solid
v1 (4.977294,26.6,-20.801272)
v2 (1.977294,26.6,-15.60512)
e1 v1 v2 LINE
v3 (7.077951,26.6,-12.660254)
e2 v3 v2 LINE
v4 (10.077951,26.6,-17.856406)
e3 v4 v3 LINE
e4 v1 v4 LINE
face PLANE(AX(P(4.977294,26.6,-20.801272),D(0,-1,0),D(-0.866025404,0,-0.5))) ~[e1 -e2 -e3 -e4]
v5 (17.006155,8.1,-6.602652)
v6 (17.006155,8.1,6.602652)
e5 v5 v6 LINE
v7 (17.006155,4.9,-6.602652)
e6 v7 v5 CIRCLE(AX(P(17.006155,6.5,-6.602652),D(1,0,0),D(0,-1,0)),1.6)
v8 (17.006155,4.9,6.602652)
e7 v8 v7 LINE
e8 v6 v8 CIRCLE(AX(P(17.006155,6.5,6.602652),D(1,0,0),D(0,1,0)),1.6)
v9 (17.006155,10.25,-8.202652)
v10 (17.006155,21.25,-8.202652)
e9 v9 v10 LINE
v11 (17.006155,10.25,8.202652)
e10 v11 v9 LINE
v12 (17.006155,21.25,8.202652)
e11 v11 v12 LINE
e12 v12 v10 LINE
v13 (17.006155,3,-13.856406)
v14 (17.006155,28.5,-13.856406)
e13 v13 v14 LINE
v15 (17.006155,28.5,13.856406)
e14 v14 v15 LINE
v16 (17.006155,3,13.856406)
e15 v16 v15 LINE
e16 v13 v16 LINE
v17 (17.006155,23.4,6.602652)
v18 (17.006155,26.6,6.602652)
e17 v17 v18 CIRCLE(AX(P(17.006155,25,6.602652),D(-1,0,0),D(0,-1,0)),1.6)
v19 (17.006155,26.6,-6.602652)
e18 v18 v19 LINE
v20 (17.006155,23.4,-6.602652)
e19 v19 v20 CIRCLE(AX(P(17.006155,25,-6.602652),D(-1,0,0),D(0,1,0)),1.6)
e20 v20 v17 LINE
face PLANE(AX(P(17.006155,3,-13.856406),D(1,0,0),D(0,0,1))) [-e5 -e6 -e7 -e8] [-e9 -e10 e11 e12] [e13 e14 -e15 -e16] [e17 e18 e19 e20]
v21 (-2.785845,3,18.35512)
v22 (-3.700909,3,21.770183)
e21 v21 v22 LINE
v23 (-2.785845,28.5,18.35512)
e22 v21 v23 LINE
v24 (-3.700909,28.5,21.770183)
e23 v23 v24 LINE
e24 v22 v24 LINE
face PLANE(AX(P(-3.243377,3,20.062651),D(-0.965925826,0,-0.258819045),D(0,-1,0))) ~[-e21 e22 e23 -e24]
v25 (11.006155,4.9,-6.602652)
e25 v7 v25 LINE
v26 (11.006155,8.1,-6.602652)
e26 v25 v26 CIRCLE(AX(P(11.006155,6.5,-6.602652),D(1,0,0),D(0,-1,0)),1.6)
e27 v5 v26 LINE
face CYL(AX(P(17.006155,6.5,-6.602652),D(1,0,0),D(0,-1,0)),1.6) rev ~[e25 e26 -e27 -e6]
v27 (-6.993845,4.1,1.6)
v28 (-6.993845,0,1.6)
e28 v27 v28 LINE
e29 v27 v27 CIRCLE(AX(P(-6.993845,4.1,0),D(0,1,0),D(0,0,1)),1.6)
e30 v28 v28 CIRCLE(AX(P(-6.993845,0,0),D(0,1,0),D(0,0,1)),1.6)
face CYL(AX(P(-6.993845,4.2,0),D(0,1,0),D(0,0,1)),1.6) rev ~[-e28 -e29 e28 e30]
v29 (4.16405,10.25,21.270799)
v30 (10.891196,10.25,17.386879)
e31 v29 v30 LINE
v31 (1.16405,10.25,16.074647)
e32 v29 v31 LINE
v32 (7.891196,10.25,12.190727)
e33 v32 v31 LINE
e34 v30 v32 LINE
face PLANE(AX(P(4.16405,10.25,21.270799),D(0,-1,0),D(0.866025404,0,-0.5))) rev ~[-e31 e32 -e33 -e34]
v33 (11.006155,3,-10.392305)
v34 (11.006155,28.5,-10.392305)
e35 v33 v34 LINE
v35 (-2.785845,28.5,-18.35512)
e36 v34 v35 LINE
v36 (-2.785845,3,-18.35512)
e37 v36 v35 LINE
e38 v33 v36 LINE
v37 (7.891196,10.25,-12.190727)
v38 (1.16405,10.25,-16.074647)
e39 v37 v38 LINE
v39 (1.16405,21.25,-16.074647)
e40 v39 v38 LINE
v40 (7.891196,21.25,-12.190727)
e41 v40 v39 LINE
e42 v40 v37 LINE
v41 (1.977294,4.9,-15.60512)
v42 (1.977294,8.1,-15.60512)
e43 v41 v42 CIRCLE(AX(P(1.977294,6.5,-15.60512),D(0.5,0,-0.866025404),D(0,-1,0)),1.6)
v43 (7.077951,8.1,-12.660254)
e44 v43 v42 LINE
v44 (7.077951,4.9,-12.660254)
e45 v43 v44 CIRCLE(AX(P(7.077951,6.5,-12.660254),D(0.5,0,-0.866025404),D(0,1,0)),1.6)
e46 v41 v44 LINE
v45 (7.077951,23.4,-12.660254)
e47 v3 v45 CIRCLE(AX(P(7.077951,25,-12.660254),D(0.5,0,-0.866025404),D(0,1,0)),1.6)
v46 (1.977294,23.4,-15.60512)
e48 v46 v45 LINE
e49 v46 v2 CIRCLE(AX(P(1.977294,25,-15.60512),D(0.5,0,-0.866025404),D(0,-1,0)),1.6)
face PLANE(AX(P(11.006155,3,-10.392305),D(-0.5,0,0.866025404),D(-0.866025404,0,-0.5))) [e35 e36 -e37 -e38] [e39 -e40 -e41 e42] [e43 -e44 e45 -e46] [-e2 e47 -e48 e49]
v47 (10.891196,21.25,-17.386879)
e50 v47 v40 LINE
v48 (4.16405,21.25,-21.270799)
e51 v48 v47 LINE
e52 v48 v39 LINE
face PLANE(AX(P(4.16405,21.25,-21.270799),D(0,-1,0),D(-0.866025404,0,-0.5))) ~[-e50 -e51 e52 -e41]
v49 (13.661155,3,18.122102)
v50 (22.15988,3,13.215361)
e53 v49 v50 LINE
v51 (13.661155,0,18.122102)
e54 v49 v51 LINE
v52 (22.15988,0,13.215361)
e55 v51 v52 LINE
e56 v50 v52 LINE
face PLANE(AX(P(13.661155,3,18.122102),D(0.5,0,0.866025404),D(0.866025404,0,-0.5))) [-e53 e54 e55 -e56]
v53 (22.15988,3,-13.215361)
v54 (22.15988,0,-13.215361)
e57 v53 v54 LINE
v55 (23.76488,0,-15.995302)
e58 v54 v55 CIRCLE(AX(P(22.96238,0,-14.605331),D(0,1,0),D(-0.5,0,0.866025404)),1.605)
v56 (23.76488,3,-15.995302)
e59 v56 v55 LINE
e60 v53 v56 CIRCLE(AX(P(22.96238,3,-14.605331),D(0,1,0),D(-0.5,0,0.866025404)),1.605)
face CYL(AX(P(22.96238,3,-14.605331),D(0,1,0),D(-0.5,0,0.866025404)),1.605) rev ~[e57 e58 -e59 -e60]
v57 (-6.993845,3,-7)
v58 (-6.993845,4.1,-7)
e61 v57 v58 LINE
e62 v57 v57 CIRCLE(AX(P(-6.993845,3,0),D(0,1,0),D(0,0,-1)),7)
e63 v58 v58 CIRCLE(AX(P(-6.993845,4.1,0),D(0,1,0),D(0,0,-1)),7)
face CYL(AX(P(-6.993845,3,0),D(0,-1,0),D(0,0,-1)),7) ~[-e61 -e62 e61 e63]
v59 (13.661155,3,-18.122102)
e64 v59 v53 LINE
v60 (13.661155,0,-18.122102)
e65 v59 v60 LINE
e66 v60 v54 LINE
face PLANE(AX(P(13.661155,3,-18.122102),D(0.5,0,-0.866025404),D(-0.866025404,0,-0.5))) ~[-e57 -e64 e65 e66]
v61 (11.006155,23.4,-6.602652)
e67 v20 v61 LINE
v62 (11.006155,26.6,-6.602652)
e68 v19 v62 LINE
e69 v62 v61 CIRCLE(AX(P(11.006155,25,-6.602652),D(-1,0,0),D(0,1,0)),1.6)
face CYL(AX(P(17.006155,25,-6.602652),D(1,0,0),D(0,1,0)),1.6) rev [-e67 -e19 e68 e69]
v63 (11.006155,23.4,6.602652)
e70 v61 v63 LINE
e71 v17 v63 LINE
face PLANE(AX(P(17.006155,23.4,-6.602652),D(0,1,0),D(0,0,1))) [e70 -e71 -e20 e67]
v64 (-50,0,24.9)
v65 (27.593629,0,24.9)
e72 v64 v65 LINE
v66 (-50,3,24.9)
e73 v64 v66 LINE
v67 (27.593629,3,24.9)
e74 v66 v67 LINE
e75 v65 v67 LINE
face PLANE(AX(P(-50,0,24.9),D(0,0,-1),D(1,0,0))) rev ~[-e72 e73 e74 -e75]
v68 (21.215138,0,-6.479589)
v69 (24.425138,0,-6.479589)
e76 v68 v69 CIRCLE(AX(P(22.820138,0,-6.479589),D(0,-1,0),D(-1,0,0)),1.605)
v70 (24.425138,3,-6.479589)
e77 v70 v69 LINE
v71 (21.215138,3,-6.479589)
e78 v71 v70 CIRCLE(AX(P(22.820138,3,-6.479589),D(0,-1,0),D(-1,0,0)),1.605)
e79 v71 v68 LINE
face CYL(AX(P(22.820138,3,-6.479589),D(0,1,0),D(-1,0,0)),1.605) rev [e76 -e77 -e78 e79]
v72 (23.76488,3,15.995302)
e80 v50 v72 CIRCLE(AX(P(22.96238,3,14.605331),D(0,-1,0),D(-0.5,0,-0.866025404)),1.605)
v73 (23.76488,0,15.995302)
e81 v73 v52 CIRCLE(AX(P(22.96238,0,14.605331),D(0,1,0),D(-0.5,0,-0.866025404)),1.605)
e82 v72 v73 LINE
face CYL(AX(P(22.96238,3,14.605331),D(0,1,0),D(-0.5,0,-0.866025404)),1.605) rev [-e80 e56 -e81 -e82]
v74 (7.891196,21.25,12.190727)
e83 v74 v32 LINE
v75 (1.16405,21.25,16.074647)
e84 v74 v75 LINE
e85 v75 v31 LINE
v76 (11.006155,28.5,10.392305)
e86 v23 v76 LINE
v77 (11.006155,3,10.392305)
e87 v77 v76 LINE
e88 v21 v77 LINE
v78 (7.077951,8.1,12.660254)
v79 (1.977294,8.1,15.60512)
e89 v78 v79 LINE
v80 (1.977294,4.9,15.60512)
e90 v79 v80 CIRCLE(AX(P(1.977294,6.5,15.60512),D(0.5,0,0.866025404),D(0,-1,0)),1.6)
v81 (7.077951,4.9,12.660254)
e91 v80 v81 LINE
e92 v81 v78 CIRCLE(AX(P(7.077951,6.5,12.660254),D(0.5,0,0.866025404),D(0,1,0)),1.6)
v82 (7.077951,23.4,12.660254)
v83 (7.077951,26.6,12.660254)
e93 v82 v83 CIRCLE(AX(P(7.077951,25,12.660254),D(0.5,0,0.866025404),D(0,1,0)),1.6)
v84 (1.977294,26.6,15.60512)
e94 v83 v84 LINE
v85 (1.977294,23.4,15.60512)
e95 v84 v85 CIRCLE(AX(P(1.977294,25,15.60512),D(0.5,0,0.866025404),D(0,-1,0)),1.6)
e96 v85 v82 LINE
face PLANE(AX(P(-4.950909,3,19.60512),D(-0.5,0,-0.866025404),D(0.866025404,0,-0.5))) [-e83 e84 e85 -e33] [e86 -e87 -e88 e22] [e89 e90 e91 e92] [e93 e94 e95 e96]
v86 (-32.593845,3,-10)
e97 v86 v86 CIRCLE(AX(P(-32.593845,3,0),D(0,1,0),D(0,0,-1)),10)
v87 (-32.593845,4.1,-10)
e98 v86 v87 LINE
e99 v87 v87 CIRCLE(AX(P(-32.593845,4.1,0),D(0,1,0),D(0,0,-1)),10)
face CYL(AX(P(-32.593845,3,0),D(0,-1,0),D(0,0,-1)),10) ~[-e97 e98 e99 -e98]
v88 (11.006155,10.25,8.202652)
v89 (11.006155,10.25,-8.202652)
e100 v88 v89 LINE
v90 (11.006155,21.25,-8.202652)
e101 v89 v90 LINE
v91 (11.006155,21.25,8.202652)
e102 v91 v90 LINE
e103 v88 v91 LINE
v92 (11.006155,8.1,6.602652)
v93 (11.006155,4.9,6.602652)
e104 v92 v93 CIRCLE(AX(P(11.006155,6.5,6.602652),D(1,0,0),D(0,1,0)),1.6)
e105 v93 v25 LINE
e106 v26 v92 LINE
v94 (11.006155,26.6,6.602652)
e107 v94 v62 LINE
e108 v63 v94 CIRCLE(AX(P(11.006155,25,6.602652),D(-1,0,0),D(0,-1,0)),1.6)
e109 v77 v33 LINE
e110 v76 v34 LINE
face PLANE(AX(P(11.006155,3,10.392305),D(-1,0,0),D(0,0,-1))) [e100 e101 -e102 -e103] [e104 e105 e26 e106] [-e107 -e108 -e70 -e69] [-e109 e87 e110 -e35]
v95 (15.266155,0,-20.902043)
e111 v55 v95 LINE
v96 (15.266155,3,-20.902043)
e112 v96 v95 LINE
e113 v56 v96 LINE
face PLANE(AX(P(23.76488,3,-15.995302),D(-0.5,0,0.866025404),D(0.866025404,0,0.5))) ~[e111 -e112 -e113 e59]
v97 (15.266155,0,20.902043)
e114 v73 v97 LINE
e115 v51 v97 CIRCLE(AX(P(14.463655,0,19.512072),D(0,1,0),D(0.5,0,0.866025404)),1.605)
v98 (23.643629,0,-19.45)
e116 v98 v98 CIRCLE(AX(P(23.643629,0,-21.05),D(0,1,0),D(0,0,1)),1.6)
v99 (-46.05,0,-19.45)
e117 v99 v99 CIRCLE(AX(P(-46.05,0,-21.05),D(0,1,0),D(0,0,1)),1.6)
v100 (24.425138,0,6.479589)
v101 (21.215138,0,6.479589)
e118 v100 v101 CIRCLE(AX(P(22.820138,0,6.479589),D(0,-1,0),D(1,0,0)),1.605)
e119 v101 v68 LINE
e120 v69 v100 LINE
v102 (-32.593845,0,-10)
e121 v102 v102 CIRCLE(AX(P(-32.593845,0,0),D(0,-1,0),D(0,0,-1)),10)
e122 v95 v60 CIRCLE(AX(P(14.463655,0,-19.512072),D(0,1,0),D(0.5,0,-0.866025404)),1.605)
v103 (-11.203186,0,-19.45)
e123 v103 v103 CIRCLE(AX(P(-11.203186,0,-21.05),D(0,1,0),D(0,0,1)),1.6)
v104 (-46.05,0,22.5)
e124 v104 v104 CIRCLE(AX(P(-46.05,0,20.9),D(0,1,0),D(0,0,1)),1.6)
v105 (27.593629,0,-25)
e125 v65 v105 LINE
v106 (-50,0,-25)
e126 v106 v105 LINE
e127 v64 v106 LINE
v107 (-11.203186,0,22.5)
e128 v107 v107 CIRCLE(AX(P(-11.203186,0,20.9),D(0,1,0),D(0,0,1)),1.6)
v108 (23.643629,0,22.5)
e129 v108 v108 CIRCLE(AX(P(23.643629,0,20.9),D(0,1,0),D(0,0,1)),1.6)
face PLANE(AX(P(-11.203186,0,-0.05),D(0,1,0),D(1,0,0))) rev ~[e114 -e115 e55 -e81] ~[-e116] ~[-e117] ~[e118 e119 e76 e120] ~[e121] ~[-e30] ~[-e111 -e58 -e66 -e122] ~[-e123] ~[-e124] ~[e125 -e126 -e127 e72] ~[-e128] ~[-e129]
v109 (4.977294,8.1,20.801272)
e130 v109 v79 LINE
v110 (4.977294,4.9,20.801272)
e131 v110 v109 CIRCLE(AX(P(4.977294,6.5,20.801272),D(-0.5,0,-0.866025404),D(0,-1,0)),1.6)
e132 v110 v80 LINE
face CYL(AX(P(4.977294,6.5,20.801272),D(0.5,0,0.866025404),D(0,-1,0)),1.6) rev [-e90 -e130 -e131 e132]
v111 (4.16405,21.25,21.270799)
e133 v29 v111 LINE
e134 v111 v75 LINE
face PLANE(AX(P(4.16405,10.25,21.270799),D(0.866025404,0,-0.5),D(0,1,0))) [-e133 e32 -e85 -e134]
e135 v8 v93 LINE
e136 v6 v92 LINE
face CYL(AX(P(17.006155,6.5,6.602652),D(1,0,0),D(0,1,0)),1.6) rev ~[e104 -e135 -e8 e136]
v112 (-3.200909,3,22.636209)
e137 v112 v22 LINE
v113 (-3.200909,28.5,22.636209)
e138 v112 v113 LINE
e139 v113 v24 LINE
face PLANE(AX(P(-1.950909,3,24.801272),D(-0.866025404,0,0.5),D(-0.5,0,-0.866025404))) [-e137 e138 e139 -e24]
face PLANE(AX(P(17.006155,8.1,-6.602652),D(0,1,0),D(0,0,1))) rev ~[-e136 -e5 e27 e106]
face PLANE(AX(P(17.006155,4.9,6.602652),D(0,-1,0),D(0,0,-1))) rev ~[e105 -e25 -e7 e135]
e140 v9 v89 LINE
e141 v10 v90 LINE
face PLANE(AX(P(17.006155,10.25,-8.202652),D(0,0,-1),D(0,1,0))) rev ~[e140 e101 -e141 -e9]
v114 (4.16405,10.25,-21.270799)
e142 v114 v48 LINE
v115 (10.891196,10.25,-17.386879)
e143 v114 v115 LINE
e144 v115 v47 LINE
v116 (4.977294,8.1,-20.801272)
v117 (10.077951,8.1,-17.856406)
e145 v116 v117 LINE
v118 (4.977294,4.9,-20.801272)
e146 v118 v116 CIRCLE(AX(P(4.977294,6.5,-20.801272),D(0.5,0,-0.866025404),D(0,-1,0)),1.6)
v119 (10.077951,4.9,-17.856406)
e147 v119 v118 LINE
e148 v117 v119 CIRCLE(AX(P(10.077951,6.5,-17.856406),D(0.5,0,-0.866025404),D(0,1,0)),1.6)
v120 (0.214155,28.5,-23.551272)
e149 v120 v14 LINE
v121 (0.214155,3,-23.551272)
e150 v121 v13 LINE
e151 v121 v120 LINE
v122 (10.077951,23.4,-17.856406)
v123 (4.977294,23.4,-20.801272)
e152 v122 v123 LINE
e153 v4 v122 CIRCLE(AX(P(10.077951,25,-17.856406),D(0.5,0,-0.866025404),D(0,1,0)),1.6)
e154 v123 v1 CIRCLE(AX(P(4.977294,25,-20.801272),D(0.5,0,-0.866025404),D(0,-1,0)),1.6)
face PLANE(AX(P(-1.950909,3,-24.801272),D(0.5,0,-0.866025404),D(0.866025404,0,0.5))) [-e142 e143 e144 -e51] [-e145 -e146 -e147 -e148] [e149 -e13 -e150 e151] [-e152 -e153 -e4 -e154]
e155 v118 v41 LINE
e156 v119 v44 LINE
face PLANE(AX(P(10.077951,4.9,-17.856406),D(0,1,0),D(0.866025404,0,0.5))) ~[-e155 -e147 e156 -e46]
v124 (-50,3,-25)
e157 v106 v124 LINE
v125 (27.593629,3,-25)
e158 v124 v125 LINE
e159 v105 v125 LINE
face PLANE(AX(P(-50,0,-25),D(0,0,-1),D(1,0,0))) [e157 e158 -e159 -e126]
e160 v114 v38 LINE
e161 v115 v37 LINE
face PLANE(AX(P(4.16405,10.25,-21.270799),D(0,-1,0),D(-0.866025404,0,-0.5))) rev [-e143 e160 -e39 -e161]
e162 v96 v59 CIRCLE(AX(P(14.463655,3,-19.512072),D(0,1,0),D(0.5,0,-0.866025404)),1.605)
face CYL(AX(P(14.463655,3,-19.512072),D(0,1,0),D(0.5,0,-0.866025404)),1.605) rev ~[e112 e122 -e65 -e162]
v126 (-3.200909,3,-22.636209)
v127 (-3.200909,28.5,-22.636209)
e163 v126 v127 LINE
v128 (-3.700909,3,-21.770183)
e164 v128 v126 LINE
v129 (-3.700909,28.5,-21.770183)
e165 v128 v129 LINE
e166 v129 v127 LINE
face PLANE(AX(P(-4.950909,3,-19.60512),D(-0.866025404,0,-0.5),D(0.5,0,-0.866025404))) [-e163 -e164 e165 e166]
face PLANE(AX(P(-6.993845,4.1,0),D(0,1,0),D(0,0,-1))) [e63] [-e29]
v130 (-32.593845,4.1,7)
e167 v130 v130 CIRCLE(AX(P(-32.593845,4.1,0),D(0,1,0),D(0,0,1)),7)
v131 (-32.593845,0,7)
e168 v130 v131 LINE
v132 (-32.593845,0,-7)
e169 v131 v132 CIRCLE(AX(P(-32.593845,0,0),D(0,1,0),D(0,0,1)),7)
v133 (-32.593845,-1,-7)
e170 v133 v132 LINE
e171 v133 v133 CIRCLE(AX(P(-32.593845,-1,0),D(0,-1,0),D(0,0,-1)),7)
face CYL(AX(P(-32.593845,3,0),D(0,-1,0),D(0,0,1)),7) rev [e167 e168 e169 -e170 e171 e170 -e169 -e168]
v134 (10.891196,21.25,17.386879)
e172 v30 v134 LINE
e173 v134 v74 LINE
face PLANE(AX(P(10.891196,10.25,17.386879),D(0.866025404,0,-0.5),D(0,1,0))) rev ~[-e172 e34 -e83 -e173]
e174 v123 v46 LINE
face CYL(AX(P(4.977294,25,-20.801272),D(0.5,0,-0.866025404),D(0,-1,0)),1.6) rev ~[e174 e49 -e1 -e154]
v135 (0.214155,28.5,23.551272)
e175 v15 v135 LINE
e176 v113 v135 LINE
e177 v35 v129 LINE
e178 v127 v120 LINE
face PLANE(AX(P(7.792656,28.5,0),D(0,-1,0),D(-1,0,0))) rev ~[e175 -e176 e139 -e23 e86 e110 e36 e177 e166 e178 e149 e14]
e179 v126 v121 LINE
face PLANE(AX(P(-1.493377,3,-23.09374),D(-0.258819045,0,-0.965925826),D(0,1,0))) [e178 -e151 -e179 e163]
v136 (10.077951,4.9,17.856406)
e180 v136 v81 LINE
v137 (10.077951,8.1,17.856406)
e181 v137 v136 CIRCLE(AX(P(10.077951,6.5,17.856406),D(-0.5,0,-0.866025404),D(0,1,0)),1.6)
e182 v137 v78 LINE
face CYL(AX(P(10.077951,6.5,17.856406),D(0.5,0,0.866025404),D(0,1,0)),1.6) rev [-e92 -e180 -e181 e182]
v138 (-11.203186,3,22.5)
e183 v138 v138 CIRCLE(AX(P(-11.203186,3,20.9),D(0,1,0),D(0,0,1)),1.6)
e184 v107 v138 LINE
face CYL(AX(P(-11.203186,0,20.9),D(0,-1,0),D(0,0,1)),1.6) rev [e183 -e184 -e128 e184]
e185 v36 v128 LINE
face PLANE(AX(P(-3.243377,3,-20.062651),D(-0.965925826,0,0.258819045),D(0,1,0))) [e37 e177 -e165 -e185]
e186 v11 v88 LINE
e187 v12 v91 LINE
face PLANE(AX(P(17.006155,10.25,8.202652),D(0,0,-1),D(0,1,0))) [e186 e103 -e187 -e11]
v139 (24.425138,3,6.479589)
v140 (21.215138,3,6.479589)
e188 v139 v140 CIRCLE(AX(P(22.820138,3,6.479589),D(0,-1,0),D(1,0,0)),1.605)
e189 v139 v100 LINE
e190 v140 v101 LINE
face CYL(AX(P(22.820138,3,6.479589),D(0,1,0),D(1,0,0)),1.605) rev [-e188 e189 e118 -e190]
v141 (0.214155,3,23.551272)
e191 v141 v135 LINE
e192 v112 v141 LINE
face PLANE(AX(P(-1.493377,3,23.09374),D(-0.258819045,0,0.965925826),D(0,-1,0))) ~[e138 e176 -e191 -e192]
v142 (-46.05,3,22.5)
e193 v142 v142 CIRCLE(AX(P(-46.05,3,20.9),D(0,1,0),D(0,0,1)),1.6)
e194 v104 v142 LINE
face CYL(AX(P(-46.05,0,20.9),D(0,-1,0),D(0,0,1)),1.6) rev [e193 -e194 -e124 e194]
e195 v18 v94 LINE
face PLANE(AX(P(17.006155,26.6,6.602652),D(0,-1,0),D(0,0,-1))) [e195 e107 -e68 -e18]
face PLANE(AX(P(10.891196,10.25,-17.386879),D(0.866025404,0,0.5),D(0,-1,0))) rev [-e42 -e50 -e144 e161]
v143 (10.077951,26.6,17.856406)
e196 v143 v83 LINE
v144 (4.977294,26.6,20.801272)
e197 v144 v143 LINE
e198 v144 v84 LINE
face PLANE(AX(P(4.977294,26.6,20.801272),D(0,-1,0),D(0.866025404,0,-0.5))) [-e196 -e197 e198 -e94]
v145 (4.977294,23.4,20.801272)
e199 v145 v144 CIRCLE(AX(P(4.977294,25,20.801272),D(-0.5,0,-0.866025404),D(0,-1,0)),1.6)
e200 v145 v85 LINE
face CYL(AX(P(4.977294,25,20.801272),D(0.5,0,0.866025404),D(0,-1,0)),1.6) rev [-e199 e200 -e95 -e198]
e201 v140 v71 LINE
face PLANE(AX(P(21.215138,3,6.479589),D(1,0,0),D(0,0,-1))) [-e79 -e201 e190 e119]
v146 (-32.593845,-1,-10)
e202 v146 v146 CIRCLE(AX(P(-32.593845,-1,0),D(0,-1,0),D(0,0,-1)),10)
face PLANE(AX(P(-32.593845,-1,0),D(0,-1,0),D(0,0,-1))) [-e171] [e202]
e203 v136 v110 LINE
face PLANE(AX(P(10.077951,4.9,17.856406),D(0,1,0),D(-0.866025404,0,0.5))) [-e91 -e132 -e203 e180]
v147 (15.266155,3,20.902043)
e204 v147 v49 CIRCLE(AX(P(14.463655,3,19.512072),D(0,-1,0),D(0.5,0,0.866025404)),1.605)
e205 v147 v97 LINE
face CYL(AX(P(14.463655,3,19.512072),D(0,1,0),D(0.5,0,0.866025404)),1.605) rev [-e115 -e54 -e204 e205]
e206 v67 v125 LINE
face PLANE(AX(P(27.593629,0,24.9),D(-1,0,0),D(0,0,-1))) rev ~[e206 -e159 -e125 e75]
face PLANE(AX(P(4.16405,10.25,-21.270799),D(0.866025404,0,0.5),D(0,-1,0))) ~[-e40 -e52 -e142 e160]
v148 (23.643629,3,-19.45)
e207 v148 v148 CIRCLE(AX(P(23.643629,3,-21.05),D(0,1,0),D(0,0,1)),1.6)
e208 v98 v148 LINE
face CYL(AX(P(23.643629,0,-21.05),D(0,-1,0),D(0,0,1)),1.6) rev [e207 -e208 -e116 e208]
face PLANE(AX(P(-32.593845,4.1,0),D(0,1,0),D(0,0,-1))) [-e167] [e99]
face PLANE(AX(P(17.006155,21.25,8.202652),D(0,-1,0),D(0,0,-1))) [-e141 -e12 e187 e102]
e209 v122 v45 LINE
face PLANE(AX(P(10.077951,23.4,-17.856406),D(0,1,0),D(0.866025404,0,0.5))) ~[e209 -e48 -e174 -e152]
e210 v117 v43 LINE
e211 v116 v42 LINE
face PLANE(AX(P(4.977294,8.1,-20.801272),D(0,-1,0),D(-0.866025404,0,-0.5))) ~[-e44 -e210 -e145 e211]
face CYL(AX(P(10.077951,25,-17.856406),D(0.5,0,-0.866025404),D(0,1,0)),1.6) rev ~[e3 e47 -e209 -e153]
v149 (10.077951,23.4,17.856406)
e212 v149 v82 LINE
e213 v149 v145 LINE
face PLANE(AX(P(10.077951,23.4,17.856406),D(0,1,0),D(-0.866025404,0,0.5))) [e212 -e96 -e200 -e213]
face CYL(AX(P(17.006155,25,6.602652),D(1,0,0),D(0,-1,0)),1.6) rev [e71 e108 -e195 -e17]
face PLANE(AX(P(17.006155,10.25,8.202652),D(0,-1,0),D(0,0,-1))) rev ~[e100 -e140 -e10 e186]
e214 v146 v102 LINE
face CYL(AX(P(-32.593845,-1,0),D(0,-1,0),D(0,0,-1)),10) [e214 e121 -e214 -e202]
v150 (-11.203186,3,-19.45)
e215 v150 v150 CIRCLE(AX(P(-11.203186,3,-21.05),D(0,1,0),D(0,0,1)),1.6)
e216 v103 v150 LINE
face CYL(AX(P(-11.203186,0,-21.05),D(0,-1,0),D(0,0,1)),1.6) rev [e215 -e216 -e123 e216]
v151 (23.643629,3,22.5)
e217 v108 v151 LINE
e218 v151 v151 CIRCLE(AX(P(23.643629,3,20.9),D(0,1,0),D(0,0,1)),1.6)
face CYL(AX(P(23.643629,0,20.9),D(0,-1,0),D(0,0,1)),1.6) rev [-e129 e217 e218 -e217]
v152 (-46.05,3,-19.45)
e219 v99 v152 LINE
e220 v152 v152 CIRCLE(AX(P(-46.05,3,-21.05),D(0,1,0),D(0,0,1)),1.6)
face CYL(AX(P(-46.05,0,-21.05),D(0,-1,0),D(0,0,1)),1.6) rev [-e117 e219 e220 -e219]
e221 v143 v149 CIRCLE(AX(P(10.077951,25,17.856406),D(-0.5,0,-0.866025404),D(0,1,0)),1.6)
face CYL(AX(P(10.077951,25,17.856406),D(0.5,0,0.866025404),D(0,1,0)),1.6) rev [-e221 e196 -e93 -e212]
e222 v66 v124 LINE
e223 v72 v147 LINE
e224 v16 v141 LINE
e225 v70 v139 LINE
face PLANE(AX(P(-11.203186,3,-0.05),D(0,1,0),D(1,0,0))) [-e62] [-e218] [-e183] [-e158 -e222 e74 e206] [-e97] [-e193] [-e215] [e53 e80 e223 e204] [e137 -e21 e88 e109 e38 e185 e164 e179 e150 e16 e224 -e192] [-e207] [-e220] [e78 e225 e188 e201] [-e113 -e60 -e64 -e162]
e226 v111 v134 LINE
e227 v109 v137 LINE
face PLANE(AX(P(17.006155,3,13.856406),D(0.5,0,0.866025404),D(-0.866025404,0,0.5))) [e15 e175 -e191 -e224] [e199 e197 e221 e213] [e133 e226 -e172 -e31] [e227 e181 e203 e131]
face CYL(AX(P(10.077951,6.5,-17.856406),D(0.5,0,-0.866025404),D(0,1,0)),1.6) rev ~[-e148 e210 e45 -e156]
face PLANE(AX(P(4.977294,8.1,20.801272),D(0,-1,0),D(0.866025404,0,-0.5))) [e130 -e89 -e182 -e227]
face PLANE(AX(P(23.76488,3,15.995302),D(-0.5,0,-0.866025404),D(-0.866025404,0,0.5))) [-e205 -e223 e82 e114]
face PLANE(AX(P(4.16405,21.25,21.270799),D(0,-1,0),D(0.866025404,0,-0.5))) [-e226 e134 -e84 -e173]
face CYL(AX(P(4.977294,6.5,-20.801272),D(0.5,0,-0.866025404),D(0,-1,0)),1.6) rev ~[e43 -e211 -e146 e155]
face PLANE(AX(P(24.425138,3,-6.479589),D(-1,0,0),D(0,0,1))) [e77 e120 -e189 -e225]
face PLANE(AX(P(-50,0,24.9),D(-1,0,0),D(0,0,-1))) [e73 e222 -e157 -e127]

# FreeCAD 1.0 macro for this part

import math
import FreeCAD as App
import Part
import Sketcher
Q = App.Units.Quantity


def edges_at(feature, points):
    """Names of the edges that pass closest to the given points."""
    edges = feature.Shape.Edges
    near = lambda p: min(range(len(edges)), key=lambda i: edges[i].distToShape(Part.Vertex(*p))[0])
    return sorted({f"Edge{near(p) + 1}" for p in points})


def add_polygon(sketch, points):
    """Adds a closed chain of lines whose ends are joined by coincident constraints."""
    first, n = sketch.GeometryCount, len(points)
    for a, b in zip(points, points[1:] + points[:1]):
        sketch.addGeometry(Part.LineSegment(App.Vector(*a, 0), App.Vector(*b, 0)), False)
    for i in range(n):
        sketch.addConstraint(Sketcher.Constraint("Coincident", first + i, 2, first + (i + 1) % n, 1))

doc = App.newDocument("Part")
params = doc.addObject("Spreadsheet::Sheet", "Params")
for row, (alias, value) in enumerate([
    ("sketch1_diameter", "14 mm"),
    ("sketch1_diameter2", "3.2 mm"),
    ("sketch1_height", "49.9 mm"),
    ("pad1_length", "3 mm"),
    ("sketch2_diameter", "20 mm"),
    ("sketch2_diameter2", "14 mm"),
    ("pad2_length", "1.1 mm"),
    ("sketch3_diameter", "20 mm"),
    ("sketch3_diameter2", "14 mm"),
    ("pad3_length", "1 mm"),
    ("sketch4_diameter", "3 mm"),
    ("pad4_length", "0.1 mm"),
    ("sketch5_length", "6 mm"),
    ("pad5_length", "25.5 mm"),
    ("sketch6_radius", "1.6 mm"),
    ("sketch6_height", "11 mm"),
    ("pocket1_length", "60.05772 mm"),
    ("pocket2_length", "11 mm"),
    ("chamfer_size", "2.5 mm"),
    ("chamfer2_size", "2.5 mm"),
    ("sketch8_diameter", "3.2 mm"),
    ("pocket3_length", "4.2 mm"),
    ("sketch9_radius", "1.6 mm"),
    ("sketch9_width", "11 mm"),
    ("pocket4_length", "6 mm"),
    ("pocket5_length", "3 mm"),
], start=1):
    params.set(f"A{row}", alias)
    params.set(f"B{row}", "=" + value)
    params.setAlias(f"B{row}", alias)

body = doc.addObject("PartDesign::Body", "Body")

# Sketch on XZ plane
sketch1 = body.newObject("Sketcher::SketchObject", "Sketch")
sketch1.AttachmentSupport = (doc.getObject("XZ_Plane"), [""])
sketch1.MapMode = "FlatFace"
add_polygon(sketch1, [(-50, -25), (-50, 24.9), (27.6, 24.9), (27.6, -25)])  # lines 0-3
sketch1.addGeometry(Part.Circle(App.Vector(-46, 20.9, 0), App.Vector(0, 0, 1), 1.6), False)  # 4
sketch1.addGeometry(Part.Circle(App.Vector(-32.6, 0, 0), App.Vector(0, 0, 1), 7), False)  # 5
sketch1.addGeometry(Part.Circle(App.Vector(-11.2, 20.9, 0), App.Vector(0, 0, 1), 1.6), False)  # 6
sketch1.addGeometry(Part.Circle(App.Vector(23.6, 20.9, 0), App.Vector(0, 0, 1), 1.6), False)  # 7
sketch1.addGeometry(Part.Circle(App.Vector(-46, -21.1, 0), App.Vector(0, 0, 1), 1.6), False)  # 8
sketch1.addGeometry(Part.Circle(App.Vector(-11.2, -21.1, 0), App.Vector(0, 0, 1), 1.6), False)  # 9
sketch1.addGeometry(Part.Circle(App.Vector(23.6, -21.1, 0), App.Vector(0, 0, 1), 1.6), False)  # 10
sketch1.addConstraint(Sketcher.Constraint("Vertical", 0))
sketch1.addConstraint(Sketcher.Constraint("Horizontal", 1))
sketch1.addConstraint(Sketcher.Constraint("Vertical", 2))
sketch1.addConstraint(Sketcher.Constraint("Horizontal", 3))
sketch1.addConstraint(Sketcher.Constraint("Equal", 4, 6))
sketch1.addConstraint(Sketcher.Constraint("Equal", 6, 7))
sketch1.addConstraint(Sketcher.Constraint("Equal", 7, 8))
sketch1.addConstraint(Sketcher.Constraint("Equal", 8, 9))
sketch1.addConstraint(Sketcher.Constraint("Equal", 9, 10))
sketch1.addConstraint(Sketcher.Constraint("PointOnObject", 5, 3, -1))
sketch1.addConstraint(Sketcher.Constraint("Horizontal", 4, 3, 6, 3))
sketch1.addConstraint(Sketcher.Constraint("Horizontal", 6, 3, 7, 3))
sketch1.addConstraint(Sketcher.Constraint("Horizontal", 8, 3, 9, 3))
sketch1.addConstraint(Sketcher.Constraint("Horizontal", 9, 3, 10, 3))
sketch1.addConstraint(Sketcher.Constraint("Vertical", 4, 3, 8, 3))
sketch1.addConstraint(Sketcher.Constraint("Vertical", 6, 3, 9, 3))
sketch1.addConstraint(Sketcher.Constraint("Vertical", 7, 3, 10, 3))
sketch1.addConstraint(Sketcher.Constraint("Diameter", 5, Q("14 mm")))
sketch1.addConstraint(Sketcher.Constraint("Diameter", 4, Q("3.2 mm")))
sketch1.addConstraint(Sketcher.Constraint("DistanceY", 0, 1, 0, 2, Q("49.9 mm")))
sketch1.addConstraint(Sketcher.Constraint("DistanceX", 0, 2, -1, 1, Q("50 mm")))
sketch1.addConstraint(Sketcher.Constraint("DistanceY", 2, 2, -1, 1, Q("25 mm")))
sketch1.addConstraint(Sketcher.Constraint("DistanceY", 4, 3, 0, 2, Q("4 mm")))
sketch1.addConstraint(Sketcher.Constraint("DistanceX", 4, 3, -1, 1, Q("46.05 mm")))
sketch1.addConstraint(Sketcher.Constraint("DistanceY", 8, 3, -1, 1, Q("21.05 mm")))
sketch1.addConstraint(Sketcher.Constraint("DistanceX", 7, 3, 1, 2, Q("3.95 mm")))
sketch1.addConstraint(Sketcher.Constraint("DistanceX", 1, 1, 1, 2, Q("77.593629 mm")))
sketch1.addConstraint(Sketcher.Constraint("DistanceX", 5, 3, 6, 3, Q("21.39066 mm")))
sketch1.addConstraint(Sketcher.Constraint("DistanceX", 5, 3, -1, 1, Q("32.593845 mm")))
sketch1.setExpression("Constraints[21]", "Params.sketch1_diameter")
sketch1.setExpression("Constraints[22]", "Params.sketch1_diameter2")
sketch1.setExpression("Constraints[23]", "Params.sketch1_height")
pad1 = body.newObject("PartDesign::Pad", "Pad")
pad1.Profile = sketch1
pad1.setExpression("Length", "Params.pad1_length")
pad1.Reversed = True

# Sketch on XZ plane
sketch2 = body.newObject("Sketcher::SketchObject", "Sketch001")
sketch2.AttachmentSupport = (doc.getObject("XZ_Plane"), [""])
sketch2.MapMode = "FlatFace"
sketch2.AttachmentOffset = App.Placement(App.Vector(0, 0, -3), App.Rotation())
sketch2.addGeometry(Part.Circle(App.Vector(-33, 0, 0), App.Vector(0, 0, 1), 10), False)
sketch2.addGeometry(Part.Circle(App.Vector(-33, 0, 0), App.Vector(0, 0, 1), 7), False)
sketch2.addGeometry(Part.Circle(App.Vector(-7, 0, 0), App.Vector(0, 0, 1), 7), False)
sketch2.addConstraint(Sketcher.Constraint("Coincident", 1, 3, 0, 3))
sketch2.addConstraint(Sketcher.Constraint("Equal", 1, 2))
sketch2.addConstraint(Sketcher.Constraint("PointOnObject", 0, 3, -1))
sketch2.addConstraint(Sketcher.Constraint("PointOnObject", 2, 3, -1))
sketch2.addConstraint(Sketcher.Constraint("Diameter", 0, Q("20 mm")))
sketch2.addConstraint(Sketcher.Constraint("Diameter", 1, Q("14 mm")))
sketch2.addConstraint(Sketcher.Constraint("DistanceX", 0, 3, 2, 3, Q("25.6 mm")))
sketch2.addConstraint(Sketcher.Constraint("DistanceX", 0, 3, -1, 1, Q("32.593845 mm")))
sketch2.setExpression("Constraints[4]", "Params.sketch2_diameter")
sketch2.setExpression("Constraints[5]", "Params.sketch2_diameter2")
pad2 = body.newObject("PartDesign::Pad", "Pad001")
pad2.Profile = sketch2
pad2.setExpression("Length", "Params.pad2_length")
pad2.Reversed = True

# Sketch on XZ plane
sketch3 = body.newObject("Sketcher::SketchObject", "Sketch002")
sketch3.AttachmentSupport = (doc.getObject("XZ_Plane"), [""])
sketch3.MapMode = "FlatFace"
sketch3.AttachmentOffset = App.Placement(App.Vector(0, 0, 1), App.Rotation())
sketch3.addGeometry(Part.Circle(App.Vector(-33, 0, 0), App.Vector(0, 0, 1), 10), False)
sketch3.addGeometry(Part.Circle(App.Vector(-33, 0, 0), App.Vector(0, 0, 1), 7), False)
sketch3.addConstraint(Sketcher.Constraint("Coincident", 1, 3, 0, 3))
sketch3.addConstraint(Sketcher.Constraint("PointOnObject", 0, 3, -1))
sketch3.addConstraint(Sketcher.Constraint("Diameter", 0, Q("20 mm")))
sketch3.addConstraint(Sketcher.Constraint("Diameter", 1, Q("14 mm")))
sketch3.addConstraint(Sketcher.Constraint("DistanceX", 0, 3, -1, 1, Q("32.593845 mm")))
sketch3.setExpression("Constraints[2]", "Params.sketch3_diameter")
sketch3.setExpression("Constraints[3]", "Params.sketch3_diameter2")
pad3 = body.newObject("PartDesign::Pad", "Pad002")
pad3.Profile = sketch3
pad3.setExpression("Length", "Params.pad3_length")
pad3.Reversed = True

# Sketch on XZ plane
sketch4 = body.newObject("Sketcher::SketchObject", "Sketch003")
sketch4.AttachmentSupport = (doc.getObject("XZ_Plane"), [""])
sketch4.MapMode = "FlatFace"
sketch4.AttachmentOffset = App.Placement(App.Vector(0, 0, -4.1), App.Rotation())
sketch4.addGeometry(Part.Circle(App.Vector(-7, 0, 0), App.Vector(0, 0, 1), 1.5), False)
sketch4.addConstraint(Sketcher.Constraint("PointOnObject", 0, 3, -1))
sketch4.addConstraint(Sketcher.Constraint("Diameter", 0, Q("3 mm")))
sketch4.addConstraint(Sketcher.Constraint("DistanceX", 0, 3, -1, 1, Q("6.993845 mm")))
sketch4.setExpression("Constraints[1]", "Params.sketch4_diameter")
pad4 = body.newObject("PartDesign::Pad", "Pad003")
pad4.Profile = sketch4
pad4.setExpression("Length", "Params.pad4_length")
pad4.Reversed = True

# Sketch on XZ plane
sketch5 = body.newObject("Sketcher::SketchObject", "Sketch004")
sketch5.AttachmentSupport = (doc.getObject("XZ_Plane"), [""])
sketch5.MapMode = "FlatFace"
sketch5.AttachmentOffset = App.Placement(App.Vector(0, 0, -3), App.Rotation())
add_polygon(sketch5, [(-5, -20), (11, -10), (11, 10), (-5, 20), (-2, 25), (17, 14), (17, -14), (-2, -25)])  # lines 0-7
sketch5.addConstraint(Sketcher.Constraint("Vertical", 1))
sketch5.addConstraint(Sketcher.Constraint("Vertical", 5))
sketch5.addConstraint(Sketcher.Constraint("Symmetric", 3, 2, 6, 2, -1))
sketch5.addConstraint(Sketcher.Constraint("Symmetric", 2, 2, 7, 2, -1))
sketch5.addConstraint(Sketcher.Constraint("Perpendicular", 2, 3))
sketch5.addConstraint(Sketcher.Constraint("Perpendicular", 3, 4))
sketch5.addConstraint(Sketcher.Constraint("Parallel", 0, 6))
sketch5.addConstraint(Sketcher.Constraint("Perpendicular", 6, 7))
sketch5.addConstraint(Sketcher.Constraint("Angle", 0, Q("30 deg")))
sketch5.addConstraint(Sketcher.Constraint("Distance", 3, Q("6 mm")))
sketch5.addConstraint(Sketcher.Constraint("DistanceX", 1, 2, 4, 2, Q("6 mm")))
sketch5.addConstraint(Sketcher.Constraint("DistanceY", 1, 1, 1, 2, Q("20.78461 mm")))
sketch5.addConstraint(Sketcher.Constraint("Distance", 0, Q("18.42563 mm")))
sketch5.addConstraint(Sketcher.Constraint("DistanceX", 2, 2, -1, 1, Q("4.950909 mm")))
sketch5.setExpression("Constraints[17]", "Params.sketch5_length")
pad5 = body.newObject("PartDesign::Pad", "Pad004")
pad5.Profile = sketch5
pad5.setExpression("Length", "Params.pad5_length")
pad5.Reversed = True

# Sketch on an angled plane
sketch6 = body.newObject("Sketcher::SketchObject", "Sketch005")
sketch6.Placement = App.Placement(App.Vector(10.251539, 0, 17.756186), App.Rotation(App.Vector(0.866025404, 0, -0.5), App.Vector(0, 1, 0), App.Vector(0.5, 0, 0.866025404), "ZXY"))
sketch6.addGeometry(Part.LineSegment(App.Vector(-0.2, 26.6, 0), App.Vector(-6.1, 26.6, 0)), False)  # 0
sketch6.addGeometry(Part.ArcOfCircle(Part.Circle(App.Vector(-6.1, 25, 0), App.Vector(0, 0, 1), 1.6), math.radians(90), math.radians(270)), False)  # 1
sketch6.addGeometry(Part.LineSegment(App.Vector(-6.1, 23.4, 0), App.Vector(-0.2, 23.4, 0)), False)  # 2
sketch6.addGeometry(Part.ArcOfCircle(Part.Circle(App.Vector(-0.2, 25, 0), App.Vector(0, 0, 1), 1.6), math.radians(-90), math.radians(90)), False)  # 3
sketch6.addGeometry(Part.LineSegment(App.Vector(-0.2, 8.1, 0), App.Vector(-6.1, 8.1, 0)), False)  # 4
sketch6.addGeometry(Part.ArcOfCircle(Part.Circle(App.Vector(-6.1, 6.5, 0), App.Vector(0, 0, 1), 1.6), math.radians(90), math.radians(270)), False)  # 5
sketch6.addGeometry(Part.LineSegment(App.Vector(-6.1, 4.9, 0), App.Vector(-0.2, 4.9, 0)), False)  # 6
sketch6.addGeometry(Part.ArcOfCircle(Part.Circle(App.Vector(-0.2, 6.5, 0), App.Vector(0, 0, 1), 1.6), math.radians(-90), math.radians(90)), False)  # 7
add_polygon(sketch6, [(-7, 21.3), (-7, 10.3), (0.7, 10.3), (0.7, 21.3)])  # lines 8-11
sketch6.addConstraint(Sketcher.Constraint("Tangent", 0, 2, 1, 1))
sketch6.addConstraint(Sketcher.Constraint("Tangent", 1, 2, 2, 1))
sketch6.addConstraint(Sketcher.Constraint("Tangent", 2, 2, 3, 1))
sketch6.addConstraint(Sketcher.Constraint("Tangent", 3, 2, 0, 1))
sketch6.addConstraint(Sketcher.Constraint("Tangent", 4, 2, 5, 1))
sketch6.addConstraint(Sketcher.Constraint("Tangent", 5, 2, 6, 1))
sketch6.addConstraint(Sketcher.Constraint("Tangent", 6, 2, 7, 1))
sketch6.addConstraint(Sketcher.Constraint("Tangent", 7, 2, 4, 1))
sketch6.addConstraint(Sketcher.Constraint("Horizontal", 0))
sketch6.addConstraint(Sketcher.Constraint("Horizontal", 2))
sketch6.addConstraint(Sketcher.Constraint("Horizontal", 4))
sketch6.addConstraint(Sketcher.Constraint("Horizontal", 6))
sketch6.addConstraint(Sketcher.Constraint("Vertical", 8))
sketch6.addConstraint(Sketcher.Constraint("Horizontal", 9))
sketch6.addConstraint(Sketcher.Constraint("Vertical", 10))
sketch6.addConstraint(Sketcher.Constraint("Horizontal", 11))
sketch6.addConstraint(Sketcher.Constraint("Equal", 3, 5))
sketch6.addConstraint(Sketcher.Constraint("Vertical", 1, 3, 5, 3))
sketch6.addConstraint(Sketcher.Constraint("Vertical", 3, 3, 7, 3))
sketch6.addConstraint(Sketcher.Constraint("Radius", 1, Q("1.6 mm")))
sketch6.addConstraint(Sketcher.Constraint("DistanceY", 8, 2, 8, 1, Q("11 mm")))
sketch6.addConstraint(Sketcher.Constraint("DistanceY", -1, 1, 1, 3, Q("25 mm")))
sketch6.addConstraint(Sketcher.Constraint("DistanceY", -1, 1, 5, 3, Q("6.5 mm")))
sketch6.addConstraint(Sketcher.Constraint("DistanceY", -1, 1, 8, 2, Q("10.25 mm")))
sketch6.addConstraint(Sketcher.Constraint("DistanceX", 0, 2, 0, 1, Q("5.889731 mm")))
sketch6.addConstraint(Sketcher.Constraint("DistanceX", 9, 1, 9, 2, Q("7.76784 mm")))
sketch6.addConstraint(Sketcher.Constraint("DistanceX", 3, 3, -1, 1, Q("0.200441 mm")))
sketch6.addConstraint(Sketcher.Constraint("DistanceX", 8, 2, -1, 1, Q("7.029227 mm")))
sketch6.setExpression("Constraints[23]", "Params.sketch6_radius")
sketch6.setExpression("Constraints[24]", "Params.sketch6_height")
pocket1 = body.newObject("PartDesign::Pocket", "Pocket")
pocket1.Profile = sketch6
pocket1.setExpression("Length", "Params.pocket1_length")
doc.recompute()

mirrored = body.newObject("PartDesign::Mirrored", "Mirrored")
mirrored.Originals = [pocket1]
mirrored.MirrorPlane = (doc.getObject("XY_Plane"), [""])
body.Tip = mirrored

# Sketch on XZ plane
sketch7 = body.newObject("Sketcher::SketchObject", "Sketch006")
sketch7.AttachmentSupport = (doc.getObject("XZ_Plane"), [""])
sketch7.MapMode = "FlatFace"
sketch7.AttachmentOffset = App.Placement(App.Vector(0, 0, -3), App.Rotation())
sketch7.addGeometry(Part.LineSegment(App.Vector(22.2, 13.2, 0), App.Vector(13.7, 18.1, 0)), False)
sketch7.addGeometry(Part.ArcOfCircle(Part.Circle(App.Vector(14.5, 19.5, 0), App.Vector(0, 0, 1), 1.6), math.radians(60), math.radians(240)), False)
sketch7.addGeometry(Part.LineSegment(App.Vector(15.3, 20.9, 0), App.Vector(23.8, 16, 0)), False)
sketch7.addGeometry(Part.ArcOfCircle(Part.Circle(App.Vector(23, 14.6, 0), App.Vector(0, 0, 1), 1.6), math.radians(-120), math.radians(60)), False)
sketch7.addConstraint(Sketcher.Constraint("Tangent", 0, 2, 1, 2))
sketch7.addConstraint(Sketcher.Constraint("Tangent", 1, 1, 2, 1))
sketch7.addConstraint(Sketcher.Constraint("Tangent", 2, 2, 3, 2))
sketch7.addConstraint(Sketcher.Constraint("Tangent", 3, 1, 0, 1))
sketch7.addConstraint(Sketcher.Constraint("Equal", 1, 3))
sketch7.addConstraint(Sketcher.Constraint("Angle", 0, Q("150 deg")))
sketch7.addConstraint(Sketcher.Constraint("Radius", 1, Q("1.605 mm")))
sketch7.addConstraint(Sketcher.Constraint("DistanceY", -1, 1, 0, 2, Q("18.122102 mm")))
sketch7.addConstraint(Sketcher.Constraint("DistanceY", 2, 2, 0, 2, Q("2.126799 mm")))
sketch7.addConstraint(Sketcher.Constraint("DistanceX", -1, 1, 3, 3, Q("22.96238 mm")))
pocket2 = body.newObject("PartDesign::Pocket", "Pocket001")
pocket2.Profile = sketch7
pocket2.setExpression("Length", "Params.pocket2_length")
pocket2.Reversed = True
doc.recompute()

mirrored2 = body.newObject("PartDesign::Mirrored", "Mirrored001")
mirrored2.Originals = [pocket2]
mirrored2.MirrorPlane = (doc.getObject("XY_Plane"), [""])
body.Tip = mirrored2
doc.recompute()

chamfer = body.newObject("PartDesign::Chamfer", "Chamfer")
chamfer.Base = (mirrored2, edges_at(mirrored2, [(-4.951, 15.75, 19.605), (-4.951, 15.75, -19.605)]))
chamfer.setExpression("Size", "Params.chamfer_size")
doc.recompute()

chamfer2 = body.newObject("PartDesign::Chamfer", "Chamfer001")
chamfer2.Base = (chamfer, edges_at(chamfer, [(-1.951, 15.75, 24.801), (-1.951, 15.75, -24.801)]))
chamfer2.setExpression("Size", "Params.chamfer2_size")

# Sketch on XZ plane
sketch8 = body.newObject("Sketcher::SketchObject", "Sketch007")
sketch8.AttachmentSupport = (doc.getObject("XZ_Plane"), [""])
sketch8.MapMode = "FlatFace"
sketch8.AttachmentOffset = App.Placement(App.Vector(0, 0, -4.2), App.Rotation())
sketch8.addGeometry(Part.Circle(App.Vector(-7, 0, 0), App.Vector(0, 0, 1), 1.6), False)
sketch8.addConstraint(Sketcher.Constraint("PointOnObject", 0, 3, -1))
sketch8.addConstraint(Sketcher.Constraint("Diameter", 0, Q("3.2 mm")))
sketch8.addConstraint(Sketcher.Constraint("DistanceX", 0, 3, -1, 1, Q("6.993845 mm")))
sketch8.setExpression("Constraints[1]", "Params.sketch8_diameter")
pocket3 = body.newObject("PartDesign::Pocket", "Pocket002")
pocket3.Profile = sketch8
pocket3.setExpression("Length", "Params.pocket3_length")
pocket3.Reversed = True

# Sketch on YZ plane
sketch9 = body.newObject("Sketcher::SketchObject", "Sketch008")
sketch9.AttachmentSupport = (doc.getObject("YZ_Plane"), [""])
sketch9.MapMode = "FlatFace"
sketch9.AttachmentOffset = App.Placement(App.Vector(0, 0, 17.006155), App.Rotation())
add_polygon(sketch9, [(21.2, 8.2), (10.2, 8.2), (10.2, -8.2), (21.2, -8.2)])  # lines 0-3
sketch9.addGeometry(Part.LineSegment(App.Vector(26.6, -6.6, 0), App.Vector(26.6, 6.6, 0)), False)  # 4
sketch9.addGeometry(Part.ArcOfCircle(Part.Circle(App.Vector(25, 6.6, 0), App.Vector(0, 0, 1), 1.6), math.radians(0), math.radians(180)), False)  # 5
sketch9.addGeometry(Part.LineSegment(App.Vector(23.4, 6.6, 0), App.Vector(23.4, -6.6, 0)), False)  # 6
sketch9.addGeometry(Part.ArcOfCircle(Part.Circle(App.Vector(25, -6.6, 0), App.Vector(0, 0, 1), 1.6), math.radians(180), math.radians(360)), False)  # 7
sketch9.addGeometry(Part.LineSegment(App.Vector(4.9, 6.6, 0), App.Vector(4.9, -6.6, 0)), False)  # 8
sketch9.addGeometry(Part.ArcOfCircle(Part.Circle(App.Vector(6.5, -6.6, 0), App.Vector(0, 0, 1), 1.6), math.radians(180), math.radians(360)), False)  # 9
sketch9.addGeometry(Part.LineSegment(App.Vector(8.1, -6.6, 0), App.Vector(8.1, 6.6, 0)), False)  # 10
sketch9.addGeometry(Part.ArcOfCircle(Part.Circle(App.Vector(6.5, 6.6, 0), App.Vector(0, 0, 1), 1.6), math.radians(0), math.radians(180)), False)  # 11
sketch9.addConstraint(Sketcher.Constraint("Tangent", 4, 2, 5, 1))
sketch9.addConstraint(Sketcher.Constraint("Tangent", 5, 2, 6, 1))
sketch9.addConstraint(Sketcher.Constraint("Tangent", 6, 2, 7, 1))
sketch9.addConstraint(Sketcher.Constraint("Tangent", 7, 2, 4, 1))
sketch9.addConstraint(Sketcher.Constraint("Tangent", 8, 2, 9, 1))
sketch9.addConstraint(Sketcher.Constraint("Tangent", 9, 2, 10, 1))
sketch9.addConstraint(Sketcher.Constraint("Tangent", 10, 2, 11, 1))
sketch9.addConstraint(Sketcher.Constraint("Tangent", 11, 2, 8, 1))
sketch9.addConstraint(Sketcher.Constraint("Horizontal", 0))
sketch9.addConstraint(Sketcher.Constraint("Vertical", 1))
sketch9.addConstraint(Sketcher.Constraint("Horizontal", 2))
sketch9.addConstraint(Sketcher.Constraint("Vertical", 3))
sketch9.addConstraint(Sketcher.Constraint("Vertical", 4))
sketch9.addConstraint(Sketcher.Constraint("Vertical", 6))
sketch9.addConstraint(Sketcher.Constraint("Vertical", 8))
sketch9.addConstraint(Sketcher.Constraint("Vertical", 10))
sketch9.addConstraint(Sketcher.Constraint("Equal", 7, 9))
sketch9.addConstraint(Sketcher.Constraint("Horizontal", 7, 3, 9, 3))
sketch9.addConstraint(Sketcher.Constraint("Horizontal", 5, 3, 11, 3))
sketch9.addConstraint(Sketcher.Constraint("Radius", 5, Q("1.6 mm")))
sketch9.addConstraint(Sketcher.Constraint("DistanceX", 0, 2, 0, 1, Q("11 mm")))
sketch9.addConstraint(Sketcher.Constraint("DistanceX", -1, 1, 5, 3, Q("25 mm")))
sketch9.addConstraint(Sketcher.Constraint("DistanceX", -1, 1, 9, 3, Q("6.5 mm")))
sketch9.addConstraint(Sketcher.Constraint("DistanceY", 11, 3, 0, 2, Q("1.6 mm")))
sketch9.addConstraint(Sketcher.Constraint("DistanceY", 1, 2, 9, 3, Q("1.6 mm")))
sketch9.addConstraint(Sketcher.Constraint("DistanceX", -1, 1, 0, 2, Q("10.25 mm")))
sketch9.addConstraint(Sketcher.Constraint("DistanceY", 1, 2, 1, 1, Q("16.405304 mm")))
sketch9.addConstraint(Sketcher.Constraint("DistanceY", -1, 1, 5, 3, Q("6.602652 mm")))
sketch9.setExpression("Constraints[23]", "Params.sketch9_radius")
sketch9.setExpression("Constraints[24]", "Params.sketch9_width")
pocket4 = body.newObject("PartDesign::Pocket", "Pocket003")
pocket4.Profile = sketch9
pocket4.setExpression("Length", "Params.pocket4_length")

# Sketch on XZ plane
sketch10 = body.newObject("Sketcher::SketchObject", "Sketch009")
sketch10.AttachmentSupport = (doc.getObject("XZ_Plane"), [""])
sketch10.MapMode = "FlatFace"
sketch10.AttachmentOffset = App.Placement(App.Vector(0, 0, -3), App.Rotation())
sketch10.addGeometry(Part.LineSegment(App.Vector(21.2, -6.5, 0), App.Vector(21.2, 6.5, 0)), False)
sketch10.addGeometry(Part.ArcOfCircle(Part.Circle(App.Vector(22.8, 6.5, 0), App.Vector(0, 0, 1), 1.6), math.radians(0), math.radians(180)), False)
sketch10.addGeometry(Part.LineSegment(App.Vector(24.4, 6.5, 0), App.Vector(24.4, -6.5, 0)), False)
sketch10.addGeometry(Part.ArcOfCircle(Part.Circle(App.Vector(22.8, -6.5, 0), App.Vector(0, 0, 1), 1.6), math.radians(180), math.radians(360)), False)
sketch10.addConstraint(Sketcher.Constraint("Tangent", 0, 2, 1, 2))
sketch10.addConstraint(Sketcher.Constraint("Tangent", 1, 1, 2, 1))
sketch10.addConstraint(Sketcher.Constraint("Tangent", 2, 2, 3, 2))
sketch10.addConstraint(Sketcher.Constraint("Tangent", 3, 1, 0, 1))
sketch10.addConstraint(Sketcher.Constraint("Vertical", 0))
sketch10.addConstraint(Sketcher.Constraint("Vertical", 2))
sketch10.addConstraint(Sketcher.Constraint("Radius", 1, Q("1.605 mm")))
sketch10.addConstraint(Sketcher.Constraint("DistanceY", 0, 1, 0, 2, Q("12.959179 mm")))
sketch10.addConstraint(Sketcher.Constraint("DistanceY", -1, 1, 1, 3, Q("6.479589 mm")))
sketch10.addConstraint(Sketcher.Constraint("DistanceX", -1, 1, 1, 3, Q("22.820138 mm")))
pocket5 = body.newObject("PartDesign::Pocket", "Pocket004")
pocket5.Profile = sketch10
pocket5.setExpression("Length", "Params.pocket5_length")
pocket5.Reversed = True

doc.recompute()
